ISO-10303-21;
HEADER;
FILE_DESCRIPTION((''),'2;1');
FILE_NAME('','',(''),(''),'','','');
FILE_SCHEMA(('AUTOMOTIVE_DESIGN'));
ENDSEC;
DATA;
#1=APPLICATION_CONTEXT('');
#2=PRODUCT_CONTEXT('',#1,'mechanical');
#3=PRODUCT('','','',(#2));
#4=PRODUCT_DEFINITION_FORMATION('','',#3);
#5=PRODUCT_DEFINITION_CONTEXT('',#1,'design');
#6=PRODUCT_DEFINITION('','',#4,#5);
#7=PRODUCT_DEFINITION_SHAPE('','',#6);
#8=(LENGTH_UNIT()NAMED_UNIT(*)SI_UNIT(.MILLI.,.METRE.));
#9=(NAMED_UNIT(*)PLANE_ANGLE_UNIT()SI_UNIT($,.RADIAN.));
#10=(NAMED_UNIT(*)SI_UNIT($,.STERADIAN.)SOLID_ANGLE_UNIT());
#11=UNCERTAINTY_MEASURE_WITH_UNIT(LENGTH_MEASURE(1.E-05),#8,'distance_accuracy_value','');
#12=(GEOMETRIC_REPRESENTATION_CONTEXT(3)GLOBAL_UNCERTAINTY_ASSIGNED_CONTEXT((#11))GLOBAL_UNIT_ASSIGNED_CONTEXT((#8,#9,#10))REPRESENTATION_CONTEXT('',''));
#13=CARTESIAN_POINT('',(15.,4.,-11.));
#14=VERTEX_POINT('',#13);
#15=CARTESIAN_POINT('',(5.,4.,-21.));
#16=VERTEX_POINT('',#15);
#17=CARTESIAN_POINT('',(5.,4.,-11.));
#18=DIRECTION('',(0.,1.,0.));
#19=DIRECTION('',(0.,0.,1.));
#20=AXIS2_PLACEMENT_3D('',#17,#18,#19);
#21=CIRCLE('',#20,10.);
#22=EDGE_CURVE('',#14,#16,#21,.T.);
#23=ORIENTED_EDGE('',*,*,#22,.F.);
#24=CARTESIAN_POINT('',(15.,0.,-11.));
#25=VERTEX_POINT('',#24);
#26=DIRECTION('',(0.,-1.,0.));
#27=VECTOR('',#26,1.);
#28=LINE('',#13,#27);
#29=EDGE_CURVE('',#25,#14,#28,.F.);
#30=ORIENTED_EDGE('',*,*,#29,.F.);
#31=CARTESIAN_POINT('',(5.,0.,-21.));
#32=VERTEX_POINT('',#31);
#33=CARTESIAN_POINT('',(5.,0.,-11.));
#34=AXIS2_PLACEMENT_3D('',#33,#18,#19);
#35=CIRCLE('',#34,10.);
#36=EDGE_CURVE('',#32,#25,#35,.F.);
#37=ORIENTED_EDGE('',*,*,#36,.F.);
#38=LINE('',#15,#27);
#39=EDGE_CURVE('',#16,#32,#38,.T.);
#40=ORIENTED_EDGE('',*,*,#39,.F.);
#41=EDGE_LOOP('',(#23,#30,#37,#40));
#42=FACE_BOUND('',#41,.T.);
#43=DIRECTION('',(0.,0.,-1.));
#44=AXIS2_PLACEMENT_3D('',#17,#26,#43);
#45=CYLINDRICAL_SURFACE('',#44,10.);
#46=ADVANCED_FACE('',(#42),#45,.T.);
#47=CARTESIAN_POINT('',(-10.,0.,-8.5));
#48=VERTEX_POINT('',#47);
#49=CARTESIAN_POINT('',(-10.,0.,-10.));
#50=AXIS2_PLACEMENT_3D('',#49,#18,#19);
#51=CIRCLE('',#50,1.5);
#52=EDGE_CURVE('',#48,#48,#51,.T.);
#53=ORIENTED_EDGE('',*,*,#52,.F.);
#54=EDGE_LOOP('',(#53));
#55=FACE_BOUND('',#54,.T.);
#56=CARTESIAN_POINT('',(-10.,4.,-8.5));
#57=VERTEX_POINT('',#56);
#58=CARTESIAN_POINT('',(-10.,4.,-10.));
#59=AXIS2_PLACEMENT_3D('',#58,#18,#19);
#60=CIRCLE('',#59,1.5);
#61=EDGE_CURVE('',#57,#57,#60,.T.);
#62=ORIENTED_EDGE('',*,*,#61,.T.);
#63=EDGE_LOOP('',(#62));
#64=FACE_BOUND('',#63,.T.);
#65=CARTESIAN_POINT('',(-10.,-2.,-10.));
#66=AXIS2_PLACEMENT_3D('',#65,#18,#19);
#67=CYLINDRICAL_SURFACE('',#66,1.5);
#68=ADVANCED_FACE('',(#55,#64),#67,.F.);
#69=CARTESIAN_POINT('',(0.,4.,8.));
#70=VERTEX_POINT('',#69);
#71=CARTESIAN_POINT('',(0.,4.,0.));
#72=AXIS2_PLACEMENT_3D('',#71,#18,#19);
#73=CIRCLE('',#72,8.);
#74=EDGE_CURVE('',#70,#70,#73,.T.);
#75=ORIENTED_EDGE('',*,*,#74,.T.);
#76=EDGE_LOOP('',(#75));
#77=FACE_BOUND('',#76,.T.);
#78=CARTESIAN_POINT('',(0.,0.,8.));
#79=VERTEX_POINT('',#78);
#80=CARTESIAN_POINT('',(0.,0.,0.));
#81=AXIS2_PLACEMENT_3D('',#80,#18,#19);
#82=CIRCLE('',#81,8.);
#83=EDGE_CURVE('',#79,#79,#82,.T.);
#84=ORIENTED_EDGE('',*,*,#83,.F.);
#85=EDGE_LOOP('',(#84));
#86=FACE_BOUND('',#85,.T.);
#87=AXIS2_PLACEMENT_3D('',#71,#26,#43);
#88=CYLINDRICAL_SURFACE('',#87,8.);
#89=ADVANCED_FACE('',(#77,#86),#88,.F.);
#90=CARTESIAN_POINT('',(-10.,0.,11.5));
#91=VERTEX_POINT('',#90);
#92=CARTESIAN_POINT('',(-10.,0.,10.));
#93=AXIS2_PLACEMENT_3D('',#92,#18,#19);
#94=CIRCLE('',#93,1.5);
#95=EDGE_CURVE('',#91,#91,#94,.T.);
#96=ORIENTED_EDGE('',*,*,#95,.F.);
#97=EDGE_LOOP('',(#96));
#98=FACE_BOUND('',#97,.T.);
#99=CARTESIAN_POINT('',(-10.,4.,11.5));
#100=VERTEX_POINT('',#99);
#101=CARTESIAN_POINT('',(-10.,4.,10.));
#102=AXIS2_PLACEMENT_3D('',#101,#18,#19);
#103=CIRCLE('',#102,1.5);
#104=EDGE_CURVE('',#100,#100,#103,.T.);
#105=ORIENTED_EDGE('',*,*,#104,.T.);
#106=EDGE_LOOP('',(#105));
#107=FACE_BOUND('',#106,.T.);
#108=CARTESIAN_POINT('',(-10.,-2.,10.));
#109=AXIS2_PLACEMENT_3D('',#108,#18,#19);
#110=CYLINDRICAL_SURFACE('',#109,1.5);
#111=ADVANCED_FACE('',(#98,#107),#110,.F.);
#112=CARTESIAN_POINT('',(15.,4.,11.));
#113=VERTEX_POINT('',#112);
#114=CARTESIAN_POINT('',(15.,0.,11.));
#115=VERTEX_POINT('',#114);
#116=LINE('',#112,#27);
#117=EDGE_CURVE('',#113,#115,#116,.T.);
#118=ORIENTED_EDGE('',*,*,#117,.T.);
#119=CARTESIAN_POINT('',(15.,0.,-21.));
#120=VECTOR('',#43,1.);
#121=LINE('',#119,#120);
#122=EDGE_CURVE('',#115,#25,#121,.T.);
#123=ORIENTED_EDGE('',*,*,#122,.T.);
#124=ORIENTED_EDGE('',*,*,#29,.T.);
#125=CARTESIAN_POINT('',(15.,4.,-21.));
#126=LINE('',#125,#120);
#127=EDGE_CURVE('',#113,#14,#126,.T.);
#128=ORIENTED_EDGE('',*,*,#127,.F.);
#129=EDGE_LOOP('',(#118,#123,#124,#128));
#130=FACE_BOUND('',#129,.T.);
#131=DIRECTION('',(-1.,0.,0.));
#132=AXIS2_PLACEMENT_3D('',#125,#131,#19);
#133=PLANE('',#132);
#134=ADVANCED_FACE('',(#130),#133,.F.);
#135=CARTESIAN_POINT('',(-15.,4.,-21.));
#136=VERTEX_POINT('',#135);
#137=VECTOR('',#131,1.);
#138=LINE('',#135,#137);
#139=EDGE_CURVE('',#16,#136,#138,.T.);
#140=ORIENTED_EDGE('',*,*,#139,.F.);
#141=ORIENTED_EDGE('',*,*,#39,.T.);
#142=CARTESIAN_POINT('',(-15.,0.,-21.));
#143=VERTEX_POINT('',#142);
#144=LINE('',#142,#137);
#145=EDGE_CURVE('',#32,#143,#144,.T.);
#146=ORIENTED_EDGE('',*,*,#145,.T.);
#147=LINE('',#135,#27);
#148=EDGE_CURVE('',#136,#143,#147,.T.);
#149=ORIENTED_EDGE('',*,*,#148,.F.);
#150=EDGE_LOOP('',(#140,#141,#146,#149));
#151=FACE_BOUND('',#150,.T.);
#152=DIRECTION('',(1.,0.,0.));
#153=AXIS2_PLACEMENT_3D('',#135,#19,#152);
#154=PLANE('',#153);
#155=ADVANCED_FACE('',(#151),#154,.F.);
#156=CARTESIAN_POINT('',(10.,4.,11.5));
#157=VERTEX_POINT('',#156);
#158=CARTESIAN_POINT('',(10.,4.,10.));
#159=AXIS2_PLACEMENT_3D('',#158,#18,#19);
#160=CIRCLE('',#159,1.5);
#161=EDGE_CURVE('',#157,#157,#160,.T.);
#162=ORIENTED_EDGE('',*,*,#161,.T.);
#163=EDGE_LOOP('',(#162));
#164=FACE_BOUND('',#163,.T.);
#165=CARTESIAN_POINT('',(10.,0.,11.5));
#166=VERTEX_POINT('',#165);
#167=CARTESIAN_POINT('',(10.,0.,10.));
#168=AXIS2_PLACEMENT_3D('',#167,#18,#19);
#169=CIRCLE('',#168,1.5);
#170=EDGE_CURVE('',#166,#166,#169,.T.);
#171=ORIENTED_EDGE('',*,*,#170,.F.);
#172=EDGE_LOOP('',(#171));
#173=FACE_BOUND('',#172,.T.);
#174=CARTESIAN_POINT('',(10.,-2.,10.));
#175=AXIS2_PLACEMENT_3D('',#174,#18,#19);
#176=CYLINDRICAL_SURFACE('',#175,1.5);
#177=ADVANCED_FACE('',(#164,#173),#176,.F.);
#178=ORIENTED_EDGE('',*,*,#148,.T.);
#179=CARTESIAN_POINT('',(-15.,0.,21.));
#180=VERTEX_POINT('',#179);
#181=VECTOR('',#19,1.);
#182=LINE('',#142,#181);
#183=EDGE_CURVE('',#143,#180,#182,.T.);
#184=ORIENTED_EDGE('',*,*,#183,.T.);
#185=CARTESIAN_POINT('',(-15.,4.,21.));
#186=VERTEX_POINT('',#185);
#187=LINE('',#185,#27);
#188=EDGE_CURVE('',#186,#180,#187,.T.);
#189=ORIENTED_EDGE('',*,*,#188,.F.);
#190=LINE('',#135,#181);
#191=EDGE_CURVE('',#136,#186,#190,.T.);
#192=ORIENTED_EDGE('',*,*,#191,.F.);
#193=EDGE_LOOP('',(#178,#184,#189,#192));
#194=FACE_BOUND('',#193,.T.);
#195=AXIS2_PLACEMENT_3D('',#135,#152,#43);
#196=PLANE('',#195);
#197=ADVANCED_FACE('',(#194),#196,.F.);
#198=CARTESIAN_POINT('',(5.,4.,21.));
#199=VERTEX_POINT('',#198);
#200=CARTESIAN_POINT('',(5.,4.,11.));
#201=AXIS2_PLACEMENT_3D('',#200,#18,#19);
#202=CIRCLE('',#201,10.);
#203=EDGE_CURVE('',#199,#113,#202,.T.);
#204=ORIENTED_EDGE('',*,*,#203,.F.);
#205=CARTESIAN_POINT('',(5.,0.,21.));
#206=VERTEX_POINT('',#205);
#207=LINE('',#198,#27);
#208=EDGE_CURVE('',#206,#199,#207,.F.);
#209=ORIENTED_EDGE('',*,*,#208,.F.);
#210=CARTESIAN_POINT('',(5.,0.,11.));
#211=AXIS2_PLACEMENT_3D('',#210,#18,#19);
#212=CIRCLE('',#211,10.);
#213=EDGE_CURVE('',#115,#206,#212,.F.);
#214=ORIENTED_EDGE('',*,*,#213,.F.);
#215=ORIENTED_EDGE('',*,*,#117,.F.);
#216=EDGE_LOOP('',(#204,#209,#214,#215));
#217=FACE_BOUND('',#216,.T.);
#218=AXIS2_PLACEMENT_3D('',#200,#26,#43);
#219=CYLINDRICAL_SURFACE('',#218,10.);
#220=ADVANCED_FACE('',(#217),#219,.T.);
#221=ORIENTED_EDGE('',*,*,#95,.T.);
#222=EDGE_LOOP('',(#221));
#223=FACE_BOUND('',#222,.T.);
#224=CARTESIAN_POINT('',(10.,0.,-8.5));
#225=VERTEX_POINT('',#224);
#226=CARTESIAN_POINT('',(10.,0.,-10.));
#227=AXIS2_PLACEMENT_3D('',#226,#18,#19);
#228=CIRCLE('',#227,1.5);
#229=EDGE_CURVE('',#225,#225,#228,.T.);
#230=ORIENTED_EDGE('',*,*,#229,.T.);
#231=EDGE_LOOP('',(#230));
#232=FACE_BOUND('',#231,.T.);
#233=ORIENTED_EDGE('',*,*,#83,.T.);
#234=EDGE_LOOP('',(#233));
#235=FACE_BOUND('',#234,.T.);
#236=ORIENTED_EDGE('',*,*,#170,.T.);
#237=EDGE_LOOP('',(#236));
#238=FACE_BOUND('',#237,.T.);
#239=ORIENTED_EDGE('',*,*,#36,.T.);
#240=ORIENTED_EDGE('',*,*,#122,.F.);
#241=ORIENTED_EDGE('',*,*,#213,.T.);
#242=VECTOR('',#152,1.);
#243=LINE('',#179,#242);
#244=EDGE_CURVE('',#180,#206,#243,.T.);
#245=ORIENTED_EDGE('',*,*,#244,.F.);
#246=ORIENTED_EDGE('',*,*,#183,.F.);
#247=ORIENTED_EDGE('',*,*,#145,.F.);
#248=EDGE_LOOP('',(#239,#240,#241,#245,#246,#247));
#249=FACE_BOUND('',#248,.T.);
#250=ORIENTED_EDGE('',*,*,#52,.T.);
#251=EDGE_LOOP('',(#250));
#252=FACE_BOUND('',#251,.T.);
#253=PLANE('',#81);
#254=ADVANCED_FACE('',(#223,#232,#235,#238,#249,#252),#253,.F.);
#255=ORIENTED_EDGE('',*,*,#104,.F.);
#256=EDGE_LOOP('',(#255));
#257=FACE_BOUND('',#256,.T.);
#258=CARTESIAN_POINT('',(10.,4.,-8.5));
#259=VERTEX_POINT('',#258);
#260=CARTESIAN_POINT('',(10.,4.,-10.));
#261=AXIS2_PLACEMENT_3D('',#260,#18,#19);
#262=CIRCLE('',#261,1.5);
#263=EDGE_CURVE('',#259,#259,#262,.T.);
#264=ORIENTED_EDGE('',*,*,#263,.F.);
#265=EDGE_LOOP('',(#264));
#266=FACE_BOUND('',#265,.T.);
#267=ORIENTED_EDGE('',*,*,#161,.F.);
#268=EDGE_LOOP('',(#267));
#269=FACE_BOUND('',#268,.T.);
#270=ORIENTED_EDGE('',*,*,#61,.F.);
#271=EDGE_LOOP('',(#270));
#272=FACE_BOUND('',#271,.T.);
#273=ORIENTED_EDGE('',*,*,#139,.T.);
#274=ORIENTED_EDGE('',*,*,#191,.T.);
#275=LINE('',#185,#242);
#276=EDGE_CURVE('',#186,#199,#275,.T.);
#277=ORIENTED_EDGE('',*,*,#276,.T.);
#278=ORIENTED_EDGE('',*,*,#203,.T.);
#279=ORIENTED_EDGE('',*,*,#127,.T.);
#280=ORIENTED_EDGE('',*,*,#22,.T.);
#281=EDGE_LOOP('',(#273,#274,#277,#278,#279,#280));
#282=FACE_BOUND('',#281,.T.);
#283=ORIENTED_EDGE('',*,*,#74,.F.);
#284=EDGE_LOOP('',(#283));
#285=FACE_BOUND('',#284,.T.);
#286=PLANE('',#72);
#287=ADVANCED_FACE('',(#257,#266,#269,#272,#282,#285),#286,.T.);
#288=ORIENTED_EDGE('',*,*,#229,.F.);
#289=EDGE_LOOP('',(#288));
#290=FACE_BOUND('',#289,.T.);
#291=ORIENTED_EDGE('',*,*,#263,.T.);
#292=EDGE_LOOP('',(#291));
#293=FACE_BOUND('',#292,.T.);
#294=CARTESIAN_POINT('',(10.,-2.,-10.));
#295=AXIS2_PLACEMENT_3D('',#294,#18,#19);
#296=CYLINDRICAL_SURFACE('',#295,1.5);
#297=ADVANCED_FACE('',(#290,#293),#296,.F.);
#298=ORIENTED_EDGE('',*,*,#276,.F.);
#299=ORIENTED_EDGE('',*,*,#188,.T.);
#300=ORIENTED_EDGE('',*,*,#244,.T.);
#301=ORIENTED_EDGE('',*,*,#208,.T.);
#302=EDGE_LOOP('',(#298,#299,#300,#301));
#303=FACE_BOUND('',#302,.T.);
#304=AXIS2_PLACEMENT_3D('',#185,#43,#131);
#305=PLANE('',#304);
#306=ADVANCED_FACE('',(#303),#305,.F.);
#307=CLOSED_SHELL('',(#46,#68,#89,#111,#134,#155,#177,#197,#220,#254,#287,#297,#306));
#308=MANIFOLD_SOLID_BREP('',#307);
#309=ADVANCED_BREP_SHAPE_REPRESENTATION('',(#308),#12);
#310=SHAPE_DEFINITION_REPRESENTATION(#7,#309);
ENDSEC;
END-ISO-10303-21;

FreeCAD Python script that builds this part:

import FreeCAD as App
import Part
import Sketcher

V = App.Vector
Q = App.Units.Quantity


def edges_at(feature, points):
    """Names of the edges that pass closest to the given points."""
    edges = feature.Shape.Edges
    near = lambda p: min(range(len(edges)), key=lambda i: edges[i].distToShape(Part.Vertex(*p))[0])
    return sorted({f"Edge{near(p) + 1}" for p in points})


def add_polygon(sketch, points):
    """Adds a closed chain of lines whose ends are joined by coincident constraints."""
    first, n = sketch.GeometryCount, len(points)
    for a, b in zip(points, points[1:] + points[:1]):
        sketch.addGeometry(Part.LineSegment(App.Vector(*a, 0), App.Vector(*b, 0)), False)
    for i in range(n):
        sketch.addConstraint(Sketcher.Constraint("Coincident", first + i, 2, first + (i + 1) % n, 1))

doc = App.newDocument("Part")
body = doc.addObject("PartDesign::Body", "Body")

# Sketch on XZ plane
sketch1 = body.newObject("Sketcher::SketchObject", "Sketch")
sketch1.AttachmentSupport = (doc.getObject("XZ_Plane"), [""])
sketch1.MapMode = "FlatFace"
add_polygon(sketch1, [(-15, -21), (-15, 21), (15, 21), (15, -21)])  # lines 0-3
sketch1.addGeometry(Part.Circle(V(0, 0, 0), V(0, 0, 1), 8), False)  # 4
sketch1.addConstraint(Sketcher.Constraint("Vertical", 0))
sketch1.addConstraint(Sketcher.Constraint("Horizontal", 1))
sketch1.addConstraint(Sketcher.Constraint("Vertical", 2))
sketch1.addConstraint(Sketcher.Constraint("Horizontal", 3))
sketch1.addConstraint(Sketcher.Constraint("Coincident", 4, 3, -1, 1))
sketch1.addConstraint(Sketcher.Constraint("Symmetric", 0, 2, 2, 2, -1, 1))
sketch1.addConstraint(Sketcher.Constraint("Diameter", 4, Q("16 mm")))
sketch1.addConstraint(Sketcher.Constraint("DistanceX", 1, 1, 1, 2, Q("30 mm")))
sketch1.addConstraint(Sketcher.Constraint("DistanceY", 0, 1, 0, 2, Q("42 mm")))
pad1 = body.newObject("PartDesign::Pad", "Pad")
pad1.Profile = sketch1
pad1.Length = 4
pad1.Reversed = True
doc.recompute()

fillet = body.newObject("PartDesign::Fillet", "Fillet")
fillet.Base = (pad1, edges_at(pad1, [(15, 2, 21), (15, 2, -21)]))
fillet.Radius = 10

# Sketch on XZ plane
sketch2 = body.newObject("Sketcher::SketchObject", "Sketch001")
sketch2.AttachmentSupport = (doc.getObject("XZ_Plane"), [""])
sketch2.MapMode = "FlatFace"
sketch2.AttachmentOffset = App.Placement(V(0, 0, -4), App.Rotation())
sketch2.addGeometry(Part.Circle(V(-10, -10, 0), V(0, 0, 1), 1.5), False)
sketch2.addGeometry(Part.Circle(V(10, -10, 0), V(0, 0, 1), 1.5), False)
sketch2.addGeometry(Part.Circle(V(10, 10, 0), V(0, 0, 1), 1.5), False)
sketch2.addGeometry(Part.Circle(V(-10, 10, 0), V(0, 0, 1), 1.5), False)
sketch2.addConstraint(Sketcher.Constraint("Equal", 0, 1))
sketch2.addConstraint(Sketcher.Constraint("Equal", 1, 2))
sketch2.addConstraint(Sketcher.Constraint("Equal", 2, 3))
sketch2.addConstraint(Sketcher.Constraint("Symmetric", 0, 3, 2, 3, -1, 1))
sketch2.addConstraint(Sketcher.Constraint("Symmetric", 1, 3, 3, 3, -1, 1))
sketch2.addConstraint(Sketcher.Constraint("Symmetric", 0, 3, 1, 3, -2))
sketch2.addConstraint(Sketcher.Constraint("Diameter", 0, Q("3 mm")))
sketch2.addConstraint(Sketcher.Constraint("DistanceX", 0, 3, -1, 1, Q("10 mm")))
sketch2.addConstraint(Sketcher.Constraint("DistanceY", 0, 3, -1, 1, Q("10 mm")))
pocket1 = body.newObject("PartDesign::Pocket", "Pocket")
pocket1.Profile = sketch2
pocket1.Length = 6
pocket1.Reversed = True

doc.recompute()
